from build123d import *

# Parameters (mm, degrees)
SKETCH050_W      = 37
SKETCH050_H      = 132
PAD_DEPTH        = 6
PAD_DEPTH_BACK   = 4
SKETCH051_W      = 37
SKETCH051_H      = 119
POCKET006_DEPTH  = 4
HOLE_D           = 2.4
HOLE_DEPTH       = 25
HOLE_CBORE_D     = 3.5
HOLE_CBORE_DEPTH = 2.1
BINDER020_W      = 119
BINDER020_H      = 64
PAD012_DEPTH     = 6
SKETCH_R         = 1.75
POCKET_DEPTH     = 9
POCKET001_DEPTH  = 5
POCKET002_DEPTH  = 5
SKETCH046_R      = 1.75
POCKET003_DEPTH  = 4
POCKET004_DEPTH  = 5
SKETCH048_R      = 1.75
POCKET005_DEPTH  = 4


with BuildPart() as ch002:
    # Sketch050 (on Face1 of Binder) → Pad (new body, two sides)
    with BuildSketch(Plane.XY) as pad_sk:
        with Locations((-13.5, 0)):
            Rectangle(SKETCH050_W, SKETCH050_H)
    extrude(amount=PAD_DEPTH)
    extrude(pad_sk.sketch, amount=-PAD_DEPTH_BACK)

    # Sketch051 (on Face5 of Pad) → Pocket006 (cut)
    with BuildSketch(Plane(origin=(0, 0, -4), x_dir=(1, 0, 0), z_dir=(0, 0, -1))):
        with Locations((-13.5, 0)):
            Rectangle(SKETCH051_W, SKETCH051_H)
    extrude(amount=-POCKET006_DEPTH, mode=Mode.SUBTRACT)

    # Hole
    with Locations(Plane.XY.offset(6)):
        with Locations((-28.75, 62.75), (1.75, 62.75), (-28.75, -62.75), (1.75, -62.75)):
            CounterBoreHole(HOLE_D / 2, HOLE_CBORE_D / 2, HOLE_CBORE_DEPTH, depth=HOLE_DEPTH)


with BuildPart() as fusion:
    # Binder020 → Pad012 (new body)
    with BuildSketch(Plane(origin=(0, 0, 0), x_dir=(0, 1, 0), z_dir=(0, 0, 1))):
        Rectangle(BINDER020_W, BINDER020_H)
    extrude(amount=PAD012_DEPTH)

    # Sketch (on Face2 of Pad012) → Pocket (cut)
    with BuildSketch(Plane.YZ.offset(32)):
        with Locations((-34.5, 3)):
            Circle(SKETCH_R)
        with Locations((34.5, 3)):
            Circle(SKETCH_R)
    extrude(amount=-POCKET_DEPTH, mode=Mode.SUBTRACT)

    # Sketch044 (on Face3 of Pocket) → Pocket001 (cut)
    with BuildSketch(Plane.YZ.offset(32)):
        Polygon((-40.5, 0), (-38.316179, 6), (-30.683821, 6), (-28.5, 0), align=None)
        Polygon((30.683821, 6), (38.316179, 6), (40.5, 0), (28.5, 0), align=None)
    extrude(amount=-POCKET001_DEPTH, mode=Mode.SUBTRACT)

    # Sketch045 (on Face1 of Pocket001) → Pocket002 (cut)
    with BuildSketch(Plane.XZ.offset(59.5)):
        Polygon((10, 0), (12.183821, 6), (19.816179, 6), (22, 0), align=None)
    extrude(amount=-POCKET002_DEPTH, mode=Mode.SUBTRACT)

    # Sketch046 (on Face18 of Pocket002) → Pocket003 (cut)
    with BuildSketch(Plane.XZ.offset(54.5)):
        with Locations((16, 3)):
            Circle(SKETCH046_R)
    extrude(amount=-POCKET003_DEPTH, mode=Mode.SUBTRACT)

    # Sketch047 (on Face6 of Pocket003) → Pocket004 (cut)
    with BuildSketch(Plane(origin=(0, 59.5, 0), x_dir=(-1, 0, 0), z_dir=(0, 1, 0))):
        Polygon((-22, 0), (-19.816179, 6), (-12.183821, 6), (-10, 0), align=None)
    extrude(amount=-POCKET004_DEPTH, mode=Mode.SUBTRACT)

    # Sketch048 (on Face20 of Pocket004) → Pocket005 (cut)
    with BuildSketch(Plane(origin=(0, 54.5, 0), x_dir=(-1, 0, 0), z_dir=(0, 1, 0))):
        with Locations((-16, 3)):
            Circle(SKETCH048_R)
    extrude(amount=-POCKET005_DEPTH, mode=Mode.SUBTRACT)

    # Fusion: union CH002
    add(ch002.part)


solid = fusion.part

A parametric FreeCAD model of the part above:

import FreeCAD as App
import Part
import Sketcher
from FreeCAD import Vector
Q = App.Units.Quantity


def add_polygon(sketch, points):
    """Adds a closed chain of lines whose ends are joined by coincident constraints."""
    first, n = sketch.GeometryCount, len(points)
    for a, b in zip(points, points[1:] + points[:1]):
        sketch.addGeometry(Part.LineSegment(App.Vector(*a, 0), App.Vector(*b, 0)), False)
    for i in range(n):
        sketch.addConstraint(Sketcher.Constraint("Coincident", first + i, 2, first + (i + 1) % n, 1))

doc = App.newDocument("Part")
body = doc.addObject("PartDesign::Body", "Body")

# Sketch on XY plane
sketch1 = doc.addObject("Sketcher::SketchObject", "Sketch")
body.addObject(sketch1)
sketch1.AttachmentSupport = (doc.XY_Plane, [""])
sketch1.MapMode = "FlatFace"
add_polygon(sketch1, [(-32, 66), (-32, -66), (5, -66), (5, 66)])  # lines 0-3
sketch1.addConstraint([
    Sketcher.Constraint("Vertical", 0),
    Sketcher.Constraint("Horizontal", 1),
    Sketcher.Constraint("Vertical", 2),
    Sketcher.Constraint("Horizontal", 3),
    Sketcher.Constraint("DistanceX", 1, 1, 1, 2, 37.0),
    Sketcher.Constraint("DistanceY", 0, 2, 0, 1, 132.0),
    Sketcher.Constraint("DistanceX", 0, 2, -1, 1, 32.0),
    Sketcher.Constraint("DistanceY", 0, 2, -1, 1, 66.0),
])
pad1 = doc.addObject("PartDesign::Pad", "Pad")
body.addObject(pad1)
pad1.Profile = sketch1
pad1.Type = "TwoLengths"
pad1.Length = 6
pad1.Length2 = 4

# Sketch on XY plane
sketch2 = doc.addObject("Sketcher::SketchObject", "Sketch001")
body.addObject(sketch2)
sketch2.AttachmentSupport = (doc.XY_Plane, [""])
sketch2.MapMode = "FlatFace"
sketch2.AttachmentOffset = App.Placement(Vector(0, 0, -4), App.Rotation())
add_polygon(sketch2, [(-32, -59.5), (-32, 59.5), (5, 59.5), (5, -59.5)])  # lines 0-3
sketch2.addConstraint([
    Sketcher.Constraint("Vertical", 0),
    Sketcher.Constraint("Horizontal", 1),
    Sketcher.Constraint("Vertical", 2),
    Sketcher.Constraint("Horizontal", 3),
    Sketcher.Constraint("DistanceX", 1, 1, 1, 2, 37.0),
    Sketcher.Constraint("DistanceY", 0, 1, 0, 2, 119.0),
    Sketcher.Constraint("DistanceX", 0, 2, -1, 1, 32.0),
    Sketcher.Constraint("DistanceY", -1, 1, 0, 2, 59.5),
])
pocket1 = doc.addObject("PartDesign::Pocket", "Pocket")
body.addObject(pocket1)
pocket1.Profile = sketch2
pocket1.Length = 4
pocket1.Reversed = True

# Sketch on XY plane
sketch3 = doc.addObject("Sketcher::SketchObject", "Sketch002")
body.addObject(sketch3)
sketch3.AttachmentSupport = (doc.XY_Plane, [""])
sketch3.MapMode = "FlatFace"
sketch3.AttachmentOffset = App.Placement(Vector(0, 0, 6), App.Rotation())
sketch3.addGeometry([
    Part.Circle(Vector(-28.75, 62.75, 0), Vector(0, 0, 1), 1.2),
    Part.Circle(Vector(1.75, 62.75, 0), Vector(0, 0, 1), 1.2),
    Part.Circle(Vector(-28.75, -62.75, 0), Vector(0, 0, 1), 1.2),
    Part.Circle(Vector(1.75, -62.75, 0), Vector(0, 0, 1), 1.2),
], False)
sketch3.addConstraint([
    Sketcher.Constraint("Equal", 0, 1),
    Sketcher.Constraint("Equal", 1, 2),
    Sketcher.Constraint("Equal", 2, 3),
    Sketcher.Constraint("Symmetric", 0, 3, 2, 3, -1),
    Sketcher.Constraint("Symmetric", 1, 3, 3, 3, -1),
    Sketcher.Constraint("Horizontal", 0, 3, 1, 3),
    Sketcher.Constraint("Diameter", 0, 2.4),
    Sketcher.Constraint("DistanceX", 0, 3, 1, 3, 30.5),
    Sketcher.Constraint("DistanceY", 2, 3, 0, 3, 125.5),
    Sketcher.Constraint("DistanceX", 0, 3, -1, 1, 28.75),
])
doc.recompute()
hole = doc.addObject("PartDesign::Hole", "Hole")
body.addObject(hole)
hole.Profile = sketch3
hole.ThreadType = "None"
hole.Diameter = 2.4
hole.DepthType = "Dimension"
hole.Depth = 25
hole.DrillPoint = "Flat"
hole.HoleCutType = "Counterbore"
hole.HoleCutDiameter = 3.5
hole.HoleCutDepth = 2.1
body2 = doc.addObject("PartDesign::Body", "Body001")

# Sketch on XY plane
sketch4 = doc.addObject("Sketcher::SketchObject", "Sketch003")
body2.addObject(sketch4)
sketch4.AttachmentSupport = (doc.getObject("XY_Plane001"), [""])
sketch4.MapMode = "FlatFace"
add_polygon(sketch4, [(-32, -59.5), (32, -59.5), (32, 59.5), (-32, 59.5)])  # lines 0-3
sketch4.addConstraint([
    Sketcher.Constraint("Horizontal", 0),
    Sketcher.Constraint("Vertical", 1),
    Sketcher.Constraint("Horizontal", 2),
    Sketcher.Constraint("Vertical", 3),
    Sketcher.Constraint("Symmetric", 0, 2, 2, 2, -1, 1),
    Sketcher.Constraint("DistanceX", 0, 1, 0, 2, 64.0),
    Sketcher.Constraint("DistanceY", 1, 1, 1, 2, 119.0),
])
pad2 = doc.addObject("PartDesign::Pad", "Pad001")
body2.addObject(pad2)
pad2.Profile = sketch4
pad2.Length = 6

# Sketch on YZ plane
sketch5 = doc.addObject("Sketcher::SketchObject", "Sketch004")
body2.addObject(sketch5)
sketch5.AttachmentSupport = (doc.getObject("YZ_Plane001"), [""])
sketch5.MapMode = "FlatFace"
sketch5.AttachmentOffset = App.Placement(Vector(0, 0, 32), App.Rotation())
sketch5.addGeometry([
    Part.Circle(Vector(-34.5, 3, 0), Vector(0, 0, 1), 1.75),
    Part.Circle(Vector(34.5, 3, 0), Vector(0, 0, 1), 1.75),
], False)
sketch5.addConstraint([
    Sketcher.Constraint("Equal", 0, 1),
    Sketcher.Constraint("Symmetric", 0, 3, 1, 3, -2),
    Sketcher.Constraint("Diameter", 0, 3.5),
    Sketcher.Constraint("DistanceY", -1, 1, 0, 3, 3.0),
    Sketcher.Constraint("DistanceX", 0, 3, 1, 3, 69.0),
])
pocket2 = doc.addObject("PartDesign::Pocket", "Pocket001")
body2.addObject(pocket2)
pocket2.Profile = sketch5
pocket2.Length = 9

# Sketch on YZ plane
sketch6 = doc.addObject("Sketcher::SketchObject", "Sketch005")
body2.addObject(sketch6)
sketch6.AttachmentSupport = (doc.getObject("YZ_Plane001"), [""])
sketch6.MapMode = "FlatFace"
sketch6.AttachmentOffset = App.Placement(Vector(0, 0, 32), App.Rotation())
add_polygon(sketch6, [(-38.316179, 6), (-40.5, 0), (-28.5, 0), (-30.683821, 6)])  # lines 0-3
add_polygon(sketch6, [(38.316179, 6), (30.683821, 6), (28.5, 0), (40.5, 0)])  # lines 4-7
sketch6.addConstraint([
    Sketcher.Constraint("Horizontal", 1),
    Sketcher.Constraint("Horizontal", 3),
    Sketcher.Constraint("Horizontal", 4),
    Sketcher.Constraint("Horizontal", 6),
    Sketcher.Constraint("Symmetric", 1, 2, 5, 2, -1, 1),
    Sketcher.Constraint("Symmetric", 2, 2, 4, 2, -2),
    Sketcher.Constraint("Symmetric", 0, 2, 6, 2, -2),
    Sketcher.Constraint("Parallel", 0, 5),
    Sketcher.Constraint("Parallel", 2, 7),
    Sketcher.Constraint("DistanceX", 1, 1, 1, 2, 12.0),
    Sketcher.Constraint("Angle", 0, Q("-109.999997 deg")),
    Sketcher.Constraint("DistanceY", -1, 1, 2, 2, 6.0),
    Sketcher.Constraint("DistanceX", 3, 2, 4, 2, 69.0),
])
pocket3 = doc.addObject("PartDesign::Pocket", "Pocket002")
body2.addObject(pocket3)
pocket3.Profile = sketch6
pocket3.Length = 5

# Sketch on XZ plane
sketch7 = doc.addObject("Sketcher::SketchObject", "Sketch006")
body2.addObject(sketch7)
sketch7.AttachmentSupport = (doc.getObject("XZ_Plane001"), [""])
sketch7.MapMode = "FlatFace"
sketch7.AttachmentOffset = App.Placement(Vector(0, 0, 59.5), App.Rotation())
add_polygon(sketch7, [(12.183821, 6), (10, 0), (22, 0), (19.816179, 6)])  # lines 0-3
sketch7.addConstraint([
    Sketcher.Constraint("Horizontal", 1),
    Sketcher.Constraint("Horizontal", 3),
    Sketcher.Constraint("PointOnObject", 0, 2, -1),
    Sketcher.Constraint("Equal", 0, 2),
    Sketcher.Constraint("DistanceX", 1, 1, 1, 2, 12.0),
    Sketcher.Constraint("Angle", 0, Q("-109.999997 deg")),
    Sketcher.Constraint("DistanceX", -1, 1, 0, 2, 10.0),
    Sketcher.Constraint("DistanceY", -1, 1, 2, 2, 6.0),
])
pocket4 = doc.addObject("PartDesign::Pocket", "Pocket003")
body2.addObject(pocket4)
pocket4.Profile = sketch7
pocket4.Length = 5

# Sketch on XZ plane
sketch8 = doc.addObject("Sketcher::SketchObject", "Sketch007")
body2.addObject(sketch8)
sketch8.AttachmentSupport = (doc.getObject("XZ_Plane001"), [""])
sketch8.MapMode = "FlatFace"
sketch8.AttachmentOffset = App.Placement(Vector(0, 0, 54.5), App.Rotation())
sketch8.addGeometry(Part.Circle(Vector(16, 3, 0), Vector(0, 0, 1), 1.75), False)
sketch8.addConstraint([
    Sketcher.Constraint("Diameter", 0, 3.5),
    Sketcher.Constraint("DistanceX", -1, 1, 0, 3, 16.0),
    Sketcher.Constraint("DistanceY", -1, 1, 0, 3, 3.0),
])
pocket5 = doc.addObject("PartDesign::Pocket", "Pocket004")
body2.addObject(pocket5)
pocket5.Profile = sketch8
pocket5.Length = 4

# Sketch on XZ plane
sketch9 = doc.addObject("Sketcher::SketchObject", "Sketch008")
body2.addObject(sketch9)
sketch9.AttachmentSupport = (doc.getObject("XZ_Plane001"), [""])
sketch9.MapMode = "FlatFace"
sketch9.AttachmentOffset = App.Placement(Vector(0, 0, -59.5), App.Rotation())
add_polygon(sketch9, [(19.816179, 6), (22, 0), (10, 0), (12.183821, 6)])  # lines 0-3
sketch9.addConstraint([
    Sketcher.Constraint("Horizontal", 1),
    Sketcher.Constraint("Horizontal", 3),
    Sketcher.Constraint("PointOnObject", 0, 2, -1),
    Sketcher.Constraint("Equal", 0, 2),
    Sketcher.Constraint("DistanceX", 1, 2, 1, 1, 12.0),
    Sketcher.Constraint("Angle", 0, Q("-70.000003 deg")),
    Sketcher.Constraint("DistanceX", -1, 1, 0, 2, 22.0),
    Sketcher.Constraint("DistanceY", -1, 1, 2, 2, 6.0),
])
pocket6 = doc.addObject("PartDesign::Pocket", "Pocket005")
body2.addObject(pocket6)
pocket6.Profile = sketch9
pocket6.Length = 5
pocket6.Reversed = True

# Sketch on XZ plane
sketch10 = doc.addObject("Sketcher::SketchObject", "Sketch009")
body2.addObject(sketch10)
sketch10.AttachmentSupport = (doc.getObject("XZ_Plane001"), [""])
sketch10.MapMode = "FlatFace"
sketch10.AttachmentOffset = App.Placement(Vector(0, 0, -54.5), App.Rotation())
sketch10.addGeometry(Part.Circle(Vector(16, 3, 0), Vector(0, 0, 1), 1.75), False)
sketch10.addConstraint([
    Sketcher.Constraint("Diameter", 0, 3.5),
    Sketcher.Constraint("DistanceX", -1, 1, 0, 3, 16.0),
    Sketcher.Constraint("DistanceY", -1, 1, 0, 3, 3.0),
])
pocket7 = doc.addObject("PartDesign::Pocket", "Pocket006")
body2.addObject(pocket7)
pocket7.Profile = sketch10
pocket7.Length = 4
pocket7.Reversed = True
doc.recompute()

boolean = doc.addObject("PartDesign::Boolean", "Boolean")
body2.addObject(boolean)
boolean.Type = "Fuse"
boolean.addObjects([body])

doc.recompute()
